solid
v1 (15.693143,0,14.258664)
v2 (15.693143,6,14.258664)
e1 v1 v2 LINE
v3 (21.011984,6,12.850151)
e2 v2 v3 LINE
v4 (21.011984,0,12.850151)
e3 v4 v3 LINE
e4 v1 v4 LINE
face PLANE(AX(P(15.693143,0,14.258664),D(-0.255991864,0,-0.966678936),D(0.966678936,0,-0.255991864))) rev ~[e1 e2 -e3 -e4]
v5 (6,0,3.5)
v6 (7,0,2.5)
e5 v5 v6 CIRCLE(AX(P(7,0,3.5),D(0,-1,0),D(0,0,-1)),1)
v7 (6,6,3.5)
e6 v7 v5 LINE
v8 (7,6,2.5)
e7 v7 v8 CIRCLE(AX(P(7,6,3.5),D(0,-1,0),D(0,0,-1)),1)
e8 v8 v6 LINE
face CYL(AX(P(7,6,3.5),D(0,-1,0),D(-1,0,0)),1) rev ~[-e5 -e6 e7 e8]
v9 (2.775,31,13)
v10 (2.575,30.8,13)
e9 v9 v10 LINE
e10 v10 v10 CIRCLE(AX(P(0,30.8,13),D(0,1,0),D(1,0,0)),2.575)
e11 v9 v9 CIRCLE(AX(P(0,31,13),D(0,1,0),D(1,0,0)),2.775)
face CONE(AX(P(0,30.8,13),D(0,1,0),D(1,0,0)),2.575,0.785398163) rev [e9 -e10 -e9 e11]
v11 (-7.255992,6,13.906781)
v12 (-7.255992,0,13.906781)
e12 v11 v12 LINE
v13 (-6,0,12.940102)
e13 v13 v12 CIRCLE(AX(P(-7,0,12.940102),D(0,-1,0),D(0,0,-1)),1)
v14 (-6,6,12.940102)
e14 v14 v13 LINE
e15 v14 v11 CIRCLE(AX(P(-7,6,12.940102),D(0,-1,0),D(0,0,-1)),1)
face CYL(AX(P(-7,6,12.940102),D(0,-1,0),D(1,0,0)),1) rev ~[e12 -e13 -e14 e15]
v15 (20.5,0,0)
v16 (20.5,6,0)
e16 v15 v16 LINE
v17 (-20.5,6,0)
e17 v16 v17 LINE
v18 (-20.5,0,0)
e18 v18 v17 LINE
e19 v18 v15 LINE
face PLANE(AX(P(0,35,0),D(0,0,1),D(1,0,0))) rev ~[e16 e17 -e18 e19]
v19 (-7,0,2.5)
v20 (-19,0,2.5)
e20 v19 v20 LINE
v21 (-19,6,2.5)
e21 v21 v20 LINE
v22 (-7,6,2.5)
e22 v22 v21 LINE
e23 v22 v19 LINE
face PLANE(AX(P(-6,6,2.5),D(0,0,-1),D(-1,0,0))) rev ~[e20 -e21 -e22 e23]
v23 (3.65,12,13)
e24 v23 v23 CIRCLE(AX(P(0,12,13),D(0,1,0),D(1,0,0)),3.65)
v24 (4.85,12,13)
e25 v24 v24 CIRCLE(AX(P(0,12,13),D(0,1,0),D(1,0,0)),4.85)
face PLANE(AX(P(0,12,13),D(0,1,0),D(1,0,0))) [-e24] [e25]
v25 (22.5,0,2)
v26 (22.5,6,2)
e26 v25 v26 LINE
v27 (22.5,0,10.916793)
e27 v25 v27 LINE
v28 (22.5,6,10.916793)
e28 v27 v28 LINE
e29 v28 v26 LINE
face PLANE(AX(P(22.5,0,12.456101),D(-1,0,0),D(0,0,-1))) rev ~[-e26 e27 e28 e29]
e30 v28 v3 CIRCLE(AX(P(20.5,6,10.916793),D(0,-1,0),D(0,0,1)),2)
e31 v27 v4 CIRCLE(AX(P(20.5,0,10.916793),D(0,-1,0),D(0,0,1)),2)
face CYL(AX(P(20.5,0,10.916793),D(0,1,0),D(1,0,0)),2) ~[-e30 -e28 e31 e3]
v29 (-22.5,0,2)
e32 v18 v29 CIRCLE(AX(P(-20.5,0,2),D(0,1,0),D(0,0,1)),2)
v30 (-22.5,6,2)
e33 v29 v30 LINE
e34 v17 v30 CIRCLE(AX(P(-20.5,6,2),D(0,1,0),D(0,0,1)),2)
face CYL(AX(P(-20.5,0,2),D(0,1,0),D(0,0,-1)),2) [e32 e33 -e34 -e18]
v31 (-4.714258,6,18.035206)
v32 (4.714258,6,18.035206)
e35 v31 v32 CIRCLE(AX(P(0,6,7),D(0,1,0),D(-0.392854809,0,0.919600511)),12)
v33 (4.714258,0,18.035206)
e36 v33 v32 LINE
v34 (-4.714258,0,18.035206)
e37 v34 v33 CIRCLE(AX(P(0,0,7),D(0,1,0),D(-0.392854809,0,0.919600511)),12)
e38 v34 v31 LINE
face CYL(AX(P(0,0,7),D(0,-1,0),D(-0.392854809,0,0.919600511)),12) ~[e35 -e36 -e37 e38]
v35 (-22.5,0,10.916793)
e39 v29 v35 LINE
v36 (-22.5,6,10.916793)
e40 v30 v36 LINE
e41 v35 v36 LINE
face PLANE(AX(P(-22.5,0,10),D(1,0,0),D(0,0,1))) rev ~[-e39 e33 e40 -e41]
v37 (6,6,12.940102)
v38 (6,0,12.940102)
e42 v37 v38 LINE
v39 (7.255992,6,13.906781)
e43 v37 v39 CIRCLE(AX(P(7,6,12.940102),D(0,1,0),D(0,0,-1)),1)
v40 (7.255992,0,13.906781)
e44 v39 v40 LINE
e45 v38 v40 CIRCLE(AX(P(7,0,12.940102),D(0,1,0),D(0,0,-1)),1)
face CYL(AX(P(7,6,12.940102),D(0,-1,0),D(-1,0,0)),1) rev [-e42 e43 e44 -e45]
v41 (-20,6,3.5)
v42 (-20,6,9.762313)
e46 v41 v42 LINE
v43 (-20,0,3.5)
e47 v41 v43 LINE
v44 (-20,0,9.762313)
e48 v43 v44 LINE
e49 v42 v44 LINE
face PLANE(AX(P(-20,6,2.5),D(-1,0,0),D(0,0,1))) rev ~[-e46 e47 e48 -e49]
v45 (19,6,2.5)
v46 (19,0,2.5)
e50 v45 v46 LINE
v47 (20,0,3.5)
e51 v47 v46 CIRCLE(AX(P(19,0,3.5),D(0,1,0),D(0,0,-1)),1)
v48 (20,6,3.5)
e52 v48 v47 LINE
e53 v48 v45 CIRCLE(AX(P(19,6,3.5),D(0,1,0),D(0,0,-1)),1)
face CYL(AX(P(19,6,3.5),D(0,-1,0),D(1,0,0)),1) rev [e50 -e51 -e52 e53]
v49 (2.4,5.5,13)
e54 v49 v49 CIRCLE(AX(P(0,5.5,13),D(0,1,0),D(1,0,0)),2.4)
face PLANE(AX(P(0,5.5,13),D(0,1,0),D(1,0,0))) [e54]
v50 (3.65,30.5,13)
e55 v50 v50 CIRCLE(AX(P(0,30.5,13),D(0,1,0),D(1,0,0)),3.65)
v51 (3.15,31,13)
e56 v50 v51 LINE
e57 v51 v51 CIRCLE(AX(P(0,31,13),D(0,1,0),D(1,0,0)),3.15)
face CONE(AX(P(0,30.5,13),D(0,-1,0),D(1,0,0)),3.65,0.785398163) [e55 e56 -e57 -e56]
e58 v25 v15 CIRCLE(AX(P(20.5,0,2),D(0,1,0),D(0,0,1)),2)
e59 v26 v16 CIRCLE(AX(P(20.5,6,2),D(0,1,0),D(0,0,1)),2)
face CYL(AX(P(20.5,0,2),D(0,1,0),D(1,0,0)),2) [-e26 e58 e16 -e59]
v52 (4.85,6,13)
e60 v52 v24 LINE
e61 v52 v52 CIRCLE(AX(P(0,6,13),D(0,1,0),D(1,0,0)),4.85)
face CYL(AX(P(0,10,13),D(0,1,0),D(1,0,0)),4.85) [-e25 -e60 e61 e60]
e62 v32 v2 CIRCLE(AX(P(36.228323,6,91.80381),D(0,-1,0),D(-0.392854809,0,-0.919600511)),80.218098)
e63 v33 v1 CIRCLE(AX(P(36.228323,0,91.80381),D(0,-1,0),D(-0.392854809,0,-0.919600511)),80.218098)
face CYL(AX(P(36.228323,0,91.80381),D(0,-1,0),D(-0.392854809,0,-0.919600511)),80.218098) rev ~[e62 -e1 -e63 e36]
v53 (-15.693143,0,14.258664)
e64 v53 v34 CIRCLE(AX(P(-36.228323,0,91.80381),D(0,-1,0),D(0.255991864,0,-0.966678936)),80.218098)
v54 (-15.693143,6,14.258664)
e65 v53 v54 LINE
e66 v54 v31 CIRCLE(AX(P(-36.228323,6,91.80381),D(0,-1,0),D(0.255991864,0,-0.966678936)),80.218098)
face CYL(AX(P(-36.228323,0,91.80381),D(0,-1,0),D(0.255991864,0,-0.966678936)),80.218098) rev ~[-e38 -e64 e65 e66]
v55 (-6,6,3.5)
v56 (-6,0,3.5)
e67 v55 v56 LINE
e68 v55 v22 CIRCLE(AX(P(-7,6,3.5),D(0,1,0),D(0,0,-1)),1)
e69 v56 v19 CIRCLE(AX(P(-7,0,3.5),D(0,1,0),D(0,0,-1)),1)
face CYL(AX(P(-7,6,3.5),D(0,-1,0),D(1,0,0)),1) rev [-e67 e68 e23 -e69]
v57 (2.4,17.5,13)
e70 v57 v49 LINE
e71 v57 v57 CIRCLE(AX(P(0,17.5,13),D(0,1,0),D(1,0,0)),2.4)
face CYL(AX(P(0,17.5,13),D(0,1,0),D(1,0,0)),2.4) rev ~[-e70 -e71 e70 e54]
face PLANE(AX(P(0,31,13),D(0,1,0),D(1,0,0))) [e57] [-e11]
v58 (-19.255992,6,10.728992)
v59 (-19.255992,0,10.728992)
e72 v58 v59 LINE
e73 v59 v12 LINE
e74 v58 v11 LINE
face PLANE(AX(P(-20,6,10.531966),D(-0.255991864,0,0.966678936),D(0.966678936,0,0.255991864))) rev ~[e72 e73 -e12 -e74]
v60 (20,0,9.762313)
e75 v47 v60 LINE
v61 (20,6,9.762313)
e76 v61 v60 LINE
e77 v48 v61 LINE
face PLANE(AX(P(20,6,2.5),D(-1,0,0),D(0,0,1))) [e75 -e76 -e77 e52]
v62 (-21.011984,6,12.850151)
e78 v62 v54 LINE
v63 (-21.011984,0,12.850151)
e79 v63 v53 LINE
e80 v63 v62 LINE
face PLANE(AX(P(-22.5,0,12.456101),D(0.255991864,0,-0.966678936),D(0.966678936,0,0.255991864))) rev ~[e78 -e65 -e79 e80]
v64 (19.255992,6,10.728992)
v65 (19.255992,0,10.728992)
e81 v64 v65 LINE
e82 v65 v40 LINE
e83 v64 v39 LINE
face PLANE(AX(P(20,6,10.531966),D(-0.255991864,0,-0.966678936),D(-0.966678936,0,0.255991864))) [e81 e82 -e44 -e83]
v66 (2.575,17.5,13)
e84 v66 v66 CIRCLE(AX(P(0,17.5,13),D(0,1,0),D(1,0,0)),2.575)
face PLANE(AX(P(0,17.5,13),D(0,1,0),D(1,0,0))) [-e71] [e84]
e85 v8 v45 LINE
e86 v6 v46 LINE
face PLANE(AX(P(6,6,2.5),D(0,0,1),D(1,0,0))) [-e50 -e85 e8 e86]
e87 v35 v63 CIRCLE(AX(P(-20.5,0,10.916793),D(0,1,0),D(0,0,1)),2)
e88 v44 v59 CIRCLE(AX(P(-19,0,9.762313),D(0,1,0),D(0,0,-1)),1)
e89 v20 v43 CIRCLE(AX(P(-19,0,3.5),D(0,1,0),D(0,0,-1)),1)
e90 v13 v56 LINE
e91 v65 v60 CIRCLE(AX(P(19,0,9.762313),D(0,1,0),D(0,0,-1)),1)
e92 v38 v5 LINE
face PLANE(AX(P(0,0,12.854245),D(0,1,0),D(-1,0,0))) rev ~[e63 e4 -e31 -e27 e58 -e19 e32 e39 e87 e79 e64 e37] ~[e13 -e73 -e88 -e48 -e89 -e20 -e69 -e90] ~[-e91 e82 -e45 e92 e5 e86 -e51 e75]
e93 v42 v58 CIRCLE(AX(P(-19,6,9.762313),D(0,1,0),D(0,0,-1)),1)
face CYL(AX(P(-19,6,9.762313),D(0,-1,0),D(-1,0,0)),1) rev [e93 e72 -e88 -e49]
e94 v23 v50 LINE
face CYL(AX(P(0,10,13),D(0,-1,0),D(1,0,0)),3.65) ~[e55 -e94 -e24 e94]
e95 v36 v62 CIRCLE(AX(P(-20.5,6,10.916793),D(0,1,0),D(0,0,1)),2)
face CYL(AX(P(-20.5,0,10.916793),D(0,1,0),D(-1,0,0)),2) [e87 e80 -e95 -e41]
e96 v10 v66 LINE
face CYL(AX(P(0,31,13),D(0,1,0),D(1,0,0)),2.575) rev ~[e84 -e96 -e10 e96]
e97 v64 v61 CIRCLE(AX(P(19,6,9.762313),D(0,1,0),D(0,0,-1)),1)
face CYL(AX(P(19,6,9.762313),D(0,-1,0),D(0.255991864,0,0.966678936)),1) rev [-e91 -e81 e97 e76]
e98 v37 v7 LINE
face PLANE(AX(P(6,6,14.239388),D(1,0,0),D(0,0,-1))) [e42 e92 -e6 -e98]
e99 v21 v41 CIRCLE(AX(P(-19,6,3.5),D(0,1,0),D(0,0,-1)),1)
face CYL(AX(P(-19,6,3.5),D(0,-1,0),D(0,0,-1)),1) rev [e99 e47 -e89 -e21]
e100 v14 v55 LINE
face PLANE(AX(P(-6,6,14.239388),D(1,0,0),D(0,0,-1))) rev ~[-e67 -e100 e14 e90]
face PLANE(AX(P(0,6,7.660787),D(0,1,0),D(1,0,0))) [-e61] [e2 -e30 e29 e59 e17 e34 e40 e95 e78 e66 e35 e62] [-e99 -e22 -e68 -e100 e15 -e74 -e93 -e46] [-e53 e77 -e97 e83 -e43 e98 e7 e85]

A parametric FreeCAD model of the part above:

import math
import FreeCAD as App
import Part
import Sketcher
Q = App.Units.Quantity


def edges_at(feature, points):
    """Names of the edges that pass closest to the given points."""
    edges = feature.Shape.Edges
    near = lambda p: min(range(len(edges)), key=lambda i: edges[i].distToShape(Part.Vertex(*p))[0])
    return sorted({f"Edge{near(p) + 1}" for p in points})


def add_polygon(sketch, points):
    """Adds a closed chain of lines whose ends are joined by coincident constraints."""
    first, n = sketch.GeometryCount, len(points)
    for a, b in zip(points, points[1:] + points[:1]):
        sketch.addGeometry(Part.LineSegment(App.Vector(*a, 0), App.Vector(*b, 0)), False)
    for i in range(n):
        sketch.addConstraint(Sketcher.Constraint("Coincident", first + i, 2, first + (i + 1) % n, 1))

doc = App.newDocument("Part")
body = doc.addObject("PartDesign::Body", "Body")

# Sketch on XY plane
sketch1 = body.newObject("Sketcher::SketchObject", "Sketch")
sketch1.AttachmentSupport = (doc.getObject("XY_Plane"), [""])
sketch1.MapMode = "FlatFace"
add_polygon(sketch1, [(-22, 70), (-22, 0), (22, 0), (22, 70)])  # lines 0-3
add_polygon(sketch1, [(12, 10), (-12, 10), (-12, 60), (12, 60)])  # lines 4-7
sketch1.addConstraint(Sketcher.Constraint("Vertical", 0))
sketch1.addConstraint(Sketcher.Constraint("Horizontal", 1))
sketch1.addConstraint(Sketcher.Constraint("Vertical", 2))
sketch1.addConstraint(Sketcher.Constraint("Horizontal", 3))
sketch1.addConstraint(Sketcher.Constraint("Horizontal", 4))
sketch1.addConstraint(Sketcher.Constraint("Vertical", 5))
sketch1.addConstraint(Sketcher.Constraint("Horizontal", 6))
sketch1.addConstraint(Sketcher.Constraint("Vertical", 7))
sketch1.addConstraint(Sketcher.Constraint("Symmetric", 0, 2, 1, 2, -1, 1))
sketch1.addConstraint(Sketcher.Constraint("DistanceX", 1, 1, 1, 2, 45.0))
sketch1.addConstraint(Sketcher.Constraint("DistanceX", 4, 2, 4, 1, 25.0))
sketch1.addConstraint(Sketcher.Constraint("DistanceY", 0, 2, 0, 1, 70.0))
sketch1.addConstraint(Sketcher.Constraint("DistanceY", 5, 1, 5, 2, 50.0))
sketch1.addConstraint(Sketcher.Constraint("DistanceY", -1, 1, 4, 2, 10.0))
sketch1.addConstraint(Sketcher.Constraint("DistanceX", 0, 2, 4, 2, 10.0))
pad1 = body.newObject("PartDesign::Pad", "Pad")
pad1.Profile = sketch1
pad1.Length = 10

# Sketch on XZ plane
sketch2 = body.newObject("Sketcher::SketchObject", "Sketch001")
sketch2.AttachmentSupport = (doc.getObject("XZ_Plane"), [""])
sketch2.MapMode = "FlatFace"
sketch2.AttachmentOffset = App.Placement(App.Vector(0, 0, -70), App.Rotation())
add_polygon(sketch2, [(-12, 0), (-12, 4), (-5, 4), (-5, 8), (5, 8), (5, 4), (12, 4), (12, 0)])  # lines 0-7
sketch2.addConstraint(Sketcher.Constraint("Vertical", 0))
sketch2.addConstraint(Sketcher.Constraint("Horizontal", 1))
sketch2.addConstraint(Sketcher.Constraint("Vertical", 2))
sketch2.addConstraint(Sketcher.Constraint("Horizontal", 3))
sketch2.addConstraint(Sketcher.Constraint("Vertical", 4))
sketch2.addConstraint(Sketcher.Constraint("Horizontal", 5))
sketch2.addConstraint(Sketcher.Constraint("Vertical", 6))
sketch2.addConstraint(Sketcher.Constraint("Horizontal", 7))
sketch2.addConstraint(Sketcher.Constraint("Symmetric", 6, 2, 7, 2, -1, 1))
sketch2.addConstraint(Sketcher.Constraint("Symmetric", 1, 2, 4, 2, -2))
sketch2.addConstraint(Sketcher.Constraint("Equal", 0, 2))
sketch2.addConstraint(Sketcher.Constraint("DistanceX", 1, 1, 1, 2, 7.0))
sketch2.addConstraint(Sketcher.Constraint("DistanceX", 3, 1, 3, 2, 10.0))
sketch2.addConstraint(Sketcher.Constraint("DistanceY", 0, 1, 0, 2, 4.0))
pocket1 = body.newObject("PartDesign::Pocket", "Pocket")
pocket1.Profile = sketch2
pocket1.Type = "UpToFirst"
pocket1.Reversed = True

# Sketch on XZ plane
sketch3 = body.newObject("Sketcher::SketchObject", "Sketch002")
sketch3.AttachmentSupport = (doc.getObject("XZ_Plane"), [""])
sketch3.MapMode = "FlatFace"
sketch3.AttachmentOffset = App.Placement(App.Vector(0, 0, -70), App.Rotation())
sketch3.addGeometry(Part.LineSegment(App.Vector(12, 10, 0), App.Vector(-12, 10, 0)), False)
sketch3.addGeometry(Part.ArcOfCircle(Part.Circle(App.Vector(-12, 18, 0), App.Vector(0, 0, 1), 8), math.radians(-90), math.radians(-16)), False)
sketch3.addGeometry(Part.ArcOfCircle(Part.Circle(App.Vector(0, 14, 0), App.Vector(0, 0, 1), 5), math.radians(16), math.radians(164)), False)
sketch3.addGeometry(Part.ArcOfCircle(Part.Circle(App.Vector(12, 18, 0), App.Vector(0, 0, 1), 8), math.radians(-164), math.radians(-90)), False)
sketch3.addConstraint(Sketcher.Constraint("Tangent", 0, 2, 1, 1))
sketch3.addConstraint(Sketcher.Constraint("Tangent", 1, 2, 2, 2))
sketch3.addConstraint(Sketcher.Constraint("Tangent", 2, 1, 3, 1))
sketch3.addConstraint(Sketcher.Constraint("Tangent", 3, 2, 0, 1))
sketch3.addConstraint(Sketcher.Constraint("Horizontal", 0))
sketch3.addConstraint(Sketcher.Constraint("Equal", 1, 3))
sketch3.addConstraint(Sketcher.Constraint("PointOnObject", 2, 3, -2))
sketch3.addConstraint(Sketcher.Constraint("Radius", 2, 5.0))
sketch3.addConstraint(Sketcher.Constraint("Radius", 1, 7.5))
sketch3.addConstraint(Sketcher.Constraint("DistanceX", 0, 2, 0, 1, 24.0))
sketch3.addConstraint(Sketcher.Constraint("DistanceY", -1, 1, 2, 3, 14.0))
pad2 = body.newObject("PartDesign::Pad", "Pad001")
pad2.Profile = sketch3
pad2.Length = 10

# Sketch on XZ plane
sketch4 = body.newObject("Sketcher::SketchObject", "Sketch003")
sketch4.AttachmentSupport = (doc.getObject("XZ_Plane"), [""])
sketch4.MapMode = "FlatFace"
sketch4.AttachmentOffset = App.Placement(App.Vector(0, 0, -70), App.Rotation())
sketch4.addGeometry(Part.Circle(App.Vector(0, 13, 0), App.Vector(0, 0, 1), 3.6), False)
sketch4.addConstraint(Sketcher.Constraint("PointOnObject", 0, 3, -2))
sketch4.addConstraint(Sketcher.Constraint("Diameter", 0, 7.3))
sketch4.addConstraint(Sketcher.Constraint("DistanceY", -1, 1, 0, 3, 13.0))
pad3 = body.newObject("PartDesign::Pad", "Pad002")
pad3.Profile = sketch4
pad3.Length = 16
pad3.Reversed = True

# Sketch on XZ plane
sketch5 = body.newObject("Sketcher::SketchObject", "Sketch004")
sketch5.AttachmentSupport = (doc.getObject("XZ_Plane"), [""])
sketch5.MapMode = "FlatFace"
sketch5.addGeometry(Part.LineSegment(App.Vector(-22.5, 12.5, 0), App.Vector(-22.5, 10, 0)), False)
sketch5.addGeometry(Part.LineSegment(App.Vector(-22.5, 10, 0), App.Vector(22.5, 10, 0)), False)
sketch5.addGeometry(Part.LineSegment(App.Vector(22.5, 10, 0), App.Vector(22.5, 12.5, 0)), False)
sketch5.addGeometry(Part.LineSegment(App.Vector(22.5, 12.5, 0), App.Vector(15.7, 14.3, 0)), False)
sketch5.addGeometry(Part.ArcOfCircle(Part.Circle(App.Vector(36.2, 91.8, 0), App.Vector(0, 0, 1), 80.2), math.radians(-113.13), math.radians(-104.83)), False)
sketch5.addGeometry(Part.ArcOfCircle(Part.Circle(App.Vector(0, 7, 0), App.Vector(0, 0, 1), 12), math.radians(67), math.radians(113)), False)
sketch5.addGeometry(Part.ArcOfCircle(Part.Circle(App.Vector(-36.2, 91.8, 0), App.Vector(0, 0, 1), 80.2), math.radians(-75.17), math.radians(-66.87)), False)
sketch5.addGeometry(Part.LineSegment(App.Vector(-15.7, 14.3, 0), App.Vector(-22.5, 12.5, 0)), False)
sketch5.addConstraint(Sketcher.Constraint("Coincident", 0, 2, 1, 1))
sketch5.addConstraint(Sketcher.Constraint("Coincident", 1, 2, 2, 1))
sketch5.addConstraint(Sketcher.Constraint("Coincident", 2, 2, 3, 1))
sketch5.addConstraint(Sketcher.Constraint("Tangent", 3, 2, 4, 2))
sketch5.addConstraint(Sketcher.Constraint("Tangent", 4, 1, 5, 1))
sketch5.addConstraint(Sketcher.Constraint("Tangent", 5, 2, 6, 2))
sketch5.addConstraint(Sketcher.Constraint("Tangent", 6, 1, 7, 1))
sketch5.addConstraint(Sketcher.Constraint("Coincident", 7, 2, 0, 1))
sketch5.addConstraint(Sketcher.Constraint("Vertical", 0))
sketch5.addConstraint(Sketcher.Constraint("Horizontal", 1))
sketch5.addConstraint(Sketcher.Constraint("Vertical", 2))
sketch5.addConstraint(Sketcher.Constraint("Equal", 4, 6))
sketch5.addConstraint(Sketcher.Constraint("Symmetric", 4, 3, 6, 3, -2))
sketch5.addConstraint(Sketcher.Constraint("Symmetric", 2, 2, 7, 2, -2))
sketch5.addConstraint(Sketcher.Constraint("Radius", 5, 12.0))
sketch5.addConstraint(Sketcher.Constraint("DistanceX", 1, 1, 1, 2, 45.0))
sketch5.addConstraint(Sketcher.Constraint("DistanceY", -1, 1, 5, 3, 7.0))
sketch5.addConstraint(Sketcher.Constraint("DistanceY", -1, 1, 0, 2, 10.0))
sketch5.addConstraint(Sketcher.Constraint("DistanceY", 0, 2, 0, 1, 2.456101))
sketch5.addConstraint(Sketcher.Constraint("Radius", 4, 80.218098))
sketch5.addConstraint(Sketcher.Constraint("DistanceX", 5, 2, 3, 2, 20.4074))
pad4 = body.newObject("PartDesign::Pad", "Pad003")
pad4.Profile = sketch5
pad4.Length = 10
pad4.Reversed = True

# Sketch on YZ plane
sketch6 = body.newObject("Sketcher::SketchObject", "Sketch005")
sketch6.AttachmentSupport = (doc.getObject("YZ_Plane"), [""])
sketch6.MapMode = "FlatFace"
add_polygon(sketch6, [(66.9, 23), (50.5, 23), (50.5, 19.5), (60, 10), (66.9, 10)])  # lines 0-4
sketch6.addConstraint(Sketcher.Constraint("Horizontal", 0))
sketch6.addConstraint(Sketcher.Constraint("Vertical", 1))
sketch6.addConstraint(Sketcher.Constraint("Horizontal", 3))
sketch6.addConstraint(Sketcher.Constraint("Vertical", 4))
sketch6.addConstraint(Sketcher.Constraint("DistanceY", 4, 1, 4, 2, 13.0))
sketch6.addConstraint(Sketcher.Constraint("Angle", 2, Q("-45 deg")))
sketch6.addConstraint(Sketcher.Constraint("DistanceX", 0, 2, 0, 1, 16.4))
sketch6.addConstraint(Sketcher.Constraint("DistanceX", 3, 1, 3, 2, 6.9))
sketch6.addConstraint(Sketcher.Constraint("DistanceY", -1, 1, 0, 2, 23.0))
sketch6.addConstraint(Sketcher.Constraint("DistanceX", -1, 1, 2, 2, 60.0))
pad5 = body.newObject("PartDesign::Pad", "Pad004")
pad5.Profile = sketch6
pad5.Length = 16
pad5.Midplane = True

# Sketch on XY plane
sketch7 = body.newObject("Sketcher::SketchObject", "Sketch006")
sketch7.AttachmentSupport = (doc.getObject("XY_Plane"), [""])
sketch7.MapMode = "FlatFace"
sketch7.AttachmentOffset = App.Placement(App.Vector(0, 0, 23), App.Rotation())
add_polygon(sketch7, [(-3, 67), (-3, 50), (3, 50), (3, 67)])  # lines 0-3
sketch7.addConstraint(Sketcher.Constraint("Vertical", 0))
sketch7.addConstraint(Sketcher.Constraint("Horizontal", 1))
sketch7.addConstraint(Sketcher.Constraint("Vertical", 2))
sketch7.addConstraint(Sketcher.Constraint("Horizontal", 3))
sketch7.addConstraint(Sketcher.Constraint("DistanceX", 1, 1, 1, 2, 6.0))
sketch7.addConstraint(Sketcher.Constraint("DistanceY", 0, 2, 0, 1, 16.4))
sketch7.addConstraint(Sketcher.Constraint("DistanceX", 0, 2, -1, 1, 3.0))
sketch7.addConstraint(Sketcher.Constraint("DistanceY", -1, 1, 0, 2, 50.5))
pocket2 = body.newObject("PartDesign::Pocket", "Pocket001")
pocket2.Profile = sketch7
pocket2.Length = 6

# Sketch on YZ plane
sketch8 = body.newObject("Sketcher::SketchObject", "Sketch007")
sketch8.AttachmentSupport = (doc.getObject("YZ_Plane"), [""])
sketch8.MapMode = "FlatFace"
sketch8.AttachmentOffset = App.Placement(App.Vector(0, 0, -8), App.Rotation())
sketch8.addGeometry(Part.LineSegment(App.Vector(64.4, 18.4, 0), App.Vector(54.4, 18.4, 0)), False)
sketch8.addGeometry(Part.ArcOfCircle(Part.Circle(App.Vector(54.4, 20, 0), App.Vector(0, 0, 1), 1.6), math.radians(90), math.radians(270)), False)
sketch8.addGeometry(Part.LineSegment(App.Vector(54.4, 21.6, 0), App.Vector(64.4, 21.6, 0)), False)
sketch8.addGeometry(Part.ArcOfCircle(Part.Circle(App.Vector(64.4, 20, 0), App.Vector(0, 0, 1), 1.6), math.radians(-90), math.radians(90)), False)
sketch8.addConstraint(Sketcher.Constraint("Tangent", 0, 2, 1, 2))
sketch8.addConstraint(Sketcher.Constraint("Tangent", 1, 1, 2, 1))
sketch8.addConstraint(Sketcher.Constraint("Tangent", 2, 2, 3, 2))
sketch8.addConstraint(Sketcher.Constraint("Tangent", 3, 1, 0, 1))
sketch8.addConstraint(Sketcher.Constraint("Horizontal", 0))
sketch8.addConstraint(Sketcher.Constraint("Horizontal", 2))
sketch8.addConstraint(Sketcher.Constraint("DistanceX", 0, 2, 0, 1, 10.0))
sketch8.addConstraint(Sketcher.Constraint("Radius", 1, 1.65))
sketch8.addConstraint(Sketcher.Constraint("DistanceY", -1, 1, 1, 3, 20.0))
sketch8.addConstraint(Sketcher.Constraint("DistanceX", -1, 1, 1, 3, 54.4))
pocket3 = body.newObject("PartDesign::Pocket", "Pocket002")
pocket3.Profile = sketch8
pocket3.Type = "ThroughAll"
pocket3.Midplane = True

# Sketch on XZ plane
sketch9 = body.newObject("Sketcher::SketchObject", "Sketch008")
sketch9.AttachmentSupport = (doc.getObject("XZ_Plane"), [""])
sketch9.MapMode = "FlatFace"
sketch9.AttachmentOffset = App.Placement(App.Vector(0, 0, -10), App.Rotation())
add_polygon(sketch9, [(-32, -7), (-32, 25), (32, 25), (32, -7)])  # lines 0-3
sketch9.addConstraint(Sketcher.Constraint("Vertical", 0))
sketch9.addConstraint(Sketcher.Constraint("Horizontal", 1))
sketch9.addConstraint(Sketcher.Constraint("Vertical", 2))
sketch9.addConstraint(Sketcher.Constraint("Horizontal", 3))
sketch9.addConstraint(Sketcher.Constraint("DistanceX", 1, 1, 1, 2, 63.799799))
sketch9.addConstraint(Sketcher.Constraint("DistanceY", 0, 1, 0, 2, 31.786722))
sketch9.addConstraint(Sketcher.Constraint("DistanceX", 0, 2, -1, 1, 32.174759))
sketch9.addConstraint(Sketcher.Constraint("DistanceY", -1, 1, 0, 2, 25.239825))
pocket4 = body.newObject("PartDesign::Pocket", "Pocket003")
pocket4.Profile = sketch9
pocket4.Type = "ThroughAll"

# Sketch on XZ plane
sketch10 = body.newObject("Sketcher::SketchObject", "Sketch009")
sketch10.AttachmentSupport = (doc.getObject("XZ_Plane"), [""])
sketch10.MapMode = "FlatFace"
sketch10.AttachmentOffset = App.Placement(App.Vector(0, 0, -10), App.Rotation())
sketch10.addGeometry(Part.Circle(App.Vector(0, 13, 0), App.Vector(0, 0, 1), 3.6), False)
sketch10.addConstraint(Sketcher.Constraint("PointOnObject", 0, 3, -2))
sketch10.addConstraint(Sketcher.Constraint("Diameter", 0, 7.3))
sketch10.addConstraint(Sketcher.Constraint("DistanceY", -1, 1, 0, 3, 13.0))
pad6 = body.newObject("PartDesign::Pad", "Pad005")
pad6.Profile = sketch10
pad6.Length = 21
pad6.Reversed = True

# Sketch on XZ plane
sketch11 = body.newObject("Sketcher::SketchObject", "Sketch010")
sketch11.AttachmentSupport = (doc.getObject("XZ_Plane"), [""])
sketch11.MapMode = "FlatFace"
sketch11.AttachmentOffset = App.Placement(App.Vector(0, 0, -10), App.Rotation())
sketch11.addGeometry(Part.Circle(App.Vector(0, 13, 0), App.Vector(0, 0, 1), 4.8), False)
sketch11.addGeometry(Part.Circle(App.Vector(0, 13, 0), App.Vector(0, 0, 1), 3.6), False)
sketch11.addConstraint(Sketcher.Constraint("Coincident", 1, 3, 0, 3))
sketch11.addConstraint(Sketcher.Constraint("PointOnObject", 0, 3, -2))
sketch11.addConstraint(Sketcher.Constraint("Diameter", 0, 9.7))
sketch11.addConstraint(Sketcher.Constraint("Diameter", 1, 7.3))
sketch11.addConstraint(Sketcher.Constraint("DistanceY", -1, 1, 0, 3, 13.0))
pad7 = body.newObject("PartDesign::Pad", "Pad006")
pad7.Profile = sketch11
pad7.Length = 2
pad7.Reversed = True

# Sketch on XZ plane
sketch12 = body.newObject("Sketcher::SketchObject", "Sketch011")
sketch12.AttachmentSupport = (doc.getObject("XZ_Plane"), [""])
sketch12.MapMode = "FlatFace"
sketch12.AttachmentOffset = App.Placement(App.Vector(0, 0, -10), App.Rotation())
sketch12.addGeometry(Part.LineSegment(App.Vector(22.5, 12.5, 0), App.Vector(22.5, 0, 0)), False)
sketch12.addGeometry(Part.LineSegment(App.Vector(22.5, 0, 0), App.Vector(-22.5, 0, 0)), False)
sketch12.addGeometry(Part.LineSegment(App.Vector(-22.5, 0, 0), App.Vector(-22.5, 12.5, 0)), False)
sketch12.addGeometry(Part.LineSegment(App.Vector(-22.5, 12.5, 0), App.Vector(-15.7, 14.3, 0)), False)
sketch12.addGeometry(Part.ArcOfCircle(Part.Circle(App.Vector(-36.2, 91.8, 0), App.Vector(0, 0, 1), 80.2), math.radians(-75.17), math.radians(-66.87)), False)
sketch12.addGeometry(Part.ArcOfCircle(Part.Circle(App.Vector(0, 7, 0), App.Vector(0, 0, 1), 12), math.radians(67), math.radians(113)), False)
sketch12.addGeometry(Part.ArcOfCircle(Part.Circle(App.Vector(36.2, 91.8, 0), App.Vector(0, 0, 1), 80.2), math.radians(-113.13), math.radians(-104.83)), False)
sketch12.addGeometry(Part.LineSegment(App.Vector(15.7, 14.3, 0), App.Vector(22.5, 12.5, 0)), False)
sketch12.addGeometry(Part.Circle(App.Vector(0, 13, 0), App.Vector(0, 0, 1), 4.8), False)
sketch12.addConstraint(Sketcher.Constraint("Coincident", 0, 2, 1, 1))
sketch12.addConstraint(Sketcher.Constraint("Coincident", 1, 2, 2, 1))
sketch12.addConstraint(Sketcher.Constraint("Coincident", 2, 2, 3, 1))
sketch12.addConstraint(Sketcher.Constraint("Tangent", 3, 2, 4, 1))
sketch12.addConstraint(Sketcher.Constraint("Tangent", 4, 2, 5, 2))
sketch12.addConstraint(Sketcher.Constraint("Tangent", 5, 1, 6, 1))
sketch12.addConstraint(Sketcher.Constraint("Tangent", 6, 2, 7, 1))
sketch12.addConstraint(Sketcher.Constraint("Coincident", 7, 2, 0, 1))
sketch12.addConstraint(Sketcher.Constraint("Vertical", 0))
sketch12.addConstraint(Sketcher.Constraint("Horizontal", 1))
sketch12.addConstraint(Sketcher.Constraint("Vertical", 2))
sketch12.addConstraint(Sketcher.Constraint("Equal", 4, 6))
sketch12.addConstraint(Sketcher.Constraint("Symmetric", 0, 2, 1, 2, -1, 1))
sketch12.addConstraint(Sketcher.Constraint("Symmetric", 4, 3, 6, 3, -2))
sketch12.addConstraint(Sketcher.Constraint("PointOnObject", 8, 3, -2))
sketch12.addConstraint(Sketcher.Constraint("Horizontal", 3, 2, 6, 2))
sketch12.addConstraint(Sketcher.Constraint("Radius", 5, 12.0))
sketch12.addConstraint(Sketcher.Constraint("Diameter", 8, 9.7))
sketch12.addConstraint(Sketcher.Constraint("DistanceX", 1, 2, 1, 1, 45.0))
sketch12.addConstraint(Sketcher.Constraint("DistanceY", -1, 1, 5, 3, 7.0))
sketch12.addConstraint(Sketcher.Constraint("DistanceY", -1, 1, 8, 3, 13.0))
sketch12.addConstraint(Sketcher.Constraint("DistanceY", 0, 2, 0, 1, 12.456101))
sketch12.addConstraint(Sketcher.Constraint("Radius", 4, 80.218098))
sketch12.addConstraint(Sketcher.Constraint("DistanceX", 3, 2, 5, 1, 20.4074))
pocket5 = body.newObject("PartDesign::Pocket", "Pocket004")
pocket5.Profile = sketch12
pocket5.Length = 4
pocket5.Reversed = True

# Sketch on XZ plane
sketch13 = body.newObject("Sketcher::SketchObject", "Sketch012")
sketch13.AttachmentSupport = (doc.getObject("XZ_Plane"), [""])
sketch13.MapMode = "FlatFace"
sketch13.AttachmentOffset = App.Placement(App.Vector(0, 0, -6), App.Rotation())
add_polygon(sketch13, [(20, 2), (6, 2), (6, 14), (20, 11)])  # lines 0-3
add_polygon(sketch13, [(-6, 14), (-6, 2), (-20, 2), (-20, 11)])  # lines 4-7
sketch13.addConstraint(Sketcher.Constraint("Horizontal", 0))
sketch13.addConstraint(Sketcher.Constraint("Vertical", 1))
sketch13.addConstraint(Sketcher.Constraint("Vertical", 3))
sketch13.addConstraint(Sketcher.Constraint("Vertical", 4))
sketch13.addConstraint(Sketcher.Constraint("Horizontal", 5))
sketch13.addConstraint(Sketcher.Constraint("Vertical", 6))
sketch13.addConstraint(Sketcher.Constraint("Symmetric", 0, 2, 4, 2, -2))
sketch13.addConstraint(Sketcher.Constraint("Symmetric", 2, 2, 6, 2, -2))
sketch13.addConstraint(Sketcher.Constraint("Horizontal", 1, 2, 7, 2))
sketch13.addConstraint(Sketcher.Constraint("DistanceX", 0, 2, 0, 1, 14.0))
sketch13.addConstraint(Sketcher.Constraint("DistanceX", -1, 1, 0, 2, 6.0))
sketch13.addConstraint(Sketcher.Constraint("DistanceY", -1, 1, 0, 2, 2.5))
sketch13.addConstraint(Sketcher.Constraint("DistanceY", 1, 1, 1, 2, 11.739388))
sketch13.addConstraint(Sketcher.Constraint("DistanceY", 3, 2, 3, 1, 8.031966))
pocket6 = body.newObject("PartDesign::Pocket", "Pocket005")
pocket6.Profile = sketch13
pocket6.Type = "ThroughAll"
pocket6.Reversed = True
doc.recompute()

fillet = body.newObject("PartDesign::Fillet", "Fillet")
fillet.Base = (pocket6, edges_at(pocket6, [
    (20, 3, 2.5),
    (20, 3, 10.532),
    (6, 3, 14.239),
    (6, 3, 2.5),
    (-6, 3, 14.239),
    (-20, 3, 10.532),
    (-20, 3, 2.5),
    (-6, 3, 2.5),
]))
fillet.Radius = 1

# Sketch on XZ plane
sketch14 = body.newObject("Sketcher::SketchObject", "Sketch013")
sketch14.AttachmentSupport = (doc.getObject("XZ_Plane"), [""])
sketch14.MapMode = "FlatFace"
sketch14.AttachmentOffset = App.Placement(App.Vector(0, 0, -31), App.Rotation())
sketch14.addGeometry(Part.Circle(App.Vector(0, 13, 0), App.Vector(0, 0, 1), 2.6), False)
sketch14.addConstraint(Sketcher.Constraint("PointOnObject", 0, 3, -2))
sketch14.addConstraint(Sketcher.Constraint("Diameter", 0, 5.15))
sketch14.addConstraint(Sketcher.Constraint("DistanceY", -1, 1, 0, 3, 13.0))
pocket7 = body.newObject("PartDesign::Pocket", "Pocket006")
pocket7.Profile = sketch14
pocket7.Length = 13.5
pocket7.Reversed = True
doc.recompute()

chamfer = body.newObject("PartDesign::Chamfer", "Chamfer")
chamfer.Base = (pocket7, edges_at(pocket7, [(-3.65, 31, 13)]))
chamfer.Size = 0.5
doc.recompute()

chamfer2 = body.newObject("PartDesign::Chamfer", "Chamfer001")
chamfer2.Base = (chamfer, edges_at(chamfer, [(-2.575, 31, 13)]))
chamfer2.Size = 0.2

# Sketch on XZ plane
sketch15 = body.newObject("Sketcher::SketchObject", "Sketch014")
sketch15.AttachmentSupport = (doc.getObject("XZ_Plane"), [""])
sketch15.MapMode = "FlatFace"
sketch15.AttachmentOffset = App.Placement(App.Vector(0, 0, -17.5), App.Rotation())
sketch15.addGeometry(Part.Circle(App.Vector(0, 13, 0), App.Vector(0, 0, 1), 2.4), False)
sketch15.addConstraint(Sketcher.Constraint("PointOnObject", 0, 3, -2))
sketch15.addConstraint(Sketcher.Constraint("Diameter", 0, 4.8))
sketch15.addConstraint(Sketcher.Constraint("DistanceY", -1, 1, 0, 3, 13.0))
pocket8 = body.newObject("PartDesign::Pocket", "Pocket007")
pocket8.Profile = sketch15
pocket8.Length = 12
pocket8.Reversed = True
doc.recompute()

fillet2 = body.newObject("PartDesign::Fillet", "Fillet001")
fillet2.Base = (pocket8, edges_at(pocket8, [
    (-22.5, 3, 12.456),
    (22.5, 3, 12.456),
    (-22.5, 3, 0),
    (22.5, 3, 0),
]))
fillet2.Radius = 2

doc.recompute()
